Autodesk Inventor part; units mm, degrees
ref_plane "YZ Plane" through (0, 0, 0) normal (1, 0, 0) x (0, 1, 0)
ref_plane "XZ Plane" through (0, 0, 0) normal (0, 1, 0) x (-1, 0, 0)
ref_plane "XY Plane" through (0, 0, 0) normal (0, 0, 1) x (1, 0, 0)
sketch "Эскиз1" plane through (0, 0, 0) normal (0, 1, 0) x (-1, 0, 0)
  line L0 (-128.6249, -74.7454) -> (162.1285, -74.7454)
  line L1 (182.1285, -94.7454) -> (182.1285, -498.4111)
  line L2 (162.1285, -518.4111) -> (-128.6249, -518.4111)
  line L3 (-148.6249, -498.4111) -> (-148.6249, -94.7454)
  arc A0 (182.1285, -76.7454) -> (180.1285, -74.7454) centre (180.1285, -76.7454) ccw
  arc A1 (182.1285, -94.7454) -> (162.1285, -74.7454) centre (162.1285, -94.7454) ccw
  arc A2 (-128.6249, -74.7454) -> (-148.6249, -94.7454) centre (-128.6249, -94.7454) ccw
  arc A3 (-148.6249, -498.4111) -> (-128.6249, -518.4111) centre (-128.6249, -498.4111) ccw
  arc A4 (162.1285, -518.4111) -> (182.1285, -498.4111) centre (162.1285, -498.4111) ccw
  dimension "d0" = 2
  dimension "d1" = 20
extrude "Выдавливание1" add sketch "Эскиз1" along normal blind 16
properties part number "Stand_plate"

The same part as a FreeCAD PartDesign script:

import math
import FreeCAD as App
import Part
import Sketcher
Q = App.Units.Quantity

doc = App.newDocument("Part")
body = doc.addObject("PartDesign::Body", "Body")

# Sketch on XZ plane
sketch1 = doc.addObject("Sketcher::SketchObject", "Sketch")
body.addObject(sketch1)
sketch1.AttachmentSupport = (doc.XZ_Plane, [""])
sketch1.MapMode = "FlatFace"
sketch1.addGeometry(Part.LineSegment(App.Vector(-162, -75, 0), App.Vector(129, -75, 0)), False)
sketch1.addGeometry(Part.ArcOfCircle(Part.Circle(App.Vector(129, -95, 0), App.Vector(0, 0, 1), 20), math.radians(0), math.radians(90)), False)
sketch1.addGeometry(Part.LineSegment(App.Vector(149, -95, 0), App.Vector(149, -498, 0)), False)
sketch1.addGeometry(Part.ArcOfCircle(Part.Circle(App.Vector(129, -498, 0), App.Vector(0, 0, 1), 20), math.radians(-90), math.radians(0)), False)
sketch1.addGeometry(Part.LineSegment(App.Vector(129, -518, 0), App.Vector(-162, -518, 0)), False)
sketch1.addGeometry(Part.ArcOfCircle(Part.Circle(App.Vector(-162, -498, 0), App.Vector(0, 0, 1), 20), math.radians(180), math.radians(270)), False)
sketch1.addGeometry(Part.LineSegment(App.Vector(-182, -498, 0), App.Vector(-182, -95, 0)), False)
sketch1.addGeometry(Part.ArcOfCircle(Part.Circle(App.Vector(-162, -95, 0), App.Vector(0, 0, 1), 20), math.radians(90), math.radians(180)), False)
sketch1.addConstraint(Sketcher.Constraint("Tangent", 0, 2, 1, 2))
sketch1.addConstraint(Sketcher.Constraint("Tangent", 1, 1, 2, 1))
sketch1.addConstraint(Sketcher.Constraint("Tangent", 2, 2, 3, 2))
sketch1.addConstraint(Sketcher.Constraint("Tangent", 3, 1, 4, 1))
sketch1.addConstraint(Sketcher.Constraint("Tangent", 4, 2, 5, 2))
sketch1.addConstraint(Sketcher.Constraint("Tangent", 5, 1, 6, 1))
sketch1.addConstraint(Sketcher.Constraint("Tangent", 6, 2, 7, 2))
sketch1.addConstraint(Sketcher.Constraint("Tangent", 7, 1, 0, 1))
sketch1.addConstraint(Sketcher.Constraint("Horizontal", 0))
sketch1.addConstraint(Sketcher.Constraint("Vertical", 2))
sketch1.addConstraint(Sketcher.Constraint("Horizontal", 4))
sketch1.addConstraint(Sketcher.Constraint("Vertical", 6))
sketch1.addConstraint(Sketcher.Constraint("Equal", 1, 3))
sketch1.addConstraint(Sketcher.Constraint("Equal", 3, 5))
sketch1.addConstraint(Sketcher.Constraint("Equal", 5, 7))
sketch1.addConstraint(Sketcher.Constraint("Radius", 1, Q("20 mm")))
sketch1.addConstraint(Sketcher.Constraint("DistanceX", 0, 1, 0, 2, Q("290.7534 mm")))
sketch1.addConstraint(Sketcher.Constraint("DistanceY", 2, 2, 2, 1, Q("403.6657 mm")))
sketch1.addConstraint(Sketcher.Constraint("DistanceX", -1, 1, 1, 3, Q("128.625 mm")))
sketch1.addConstraint(Sketcher.Constraint("DistanceY", 3, 3, -1, 1, Q("498.411 mm")))
pad1 = doc.addObject("PartDesign::Pad", "Pad")
body.addObject(pad1)
pad1.Profile = sketch1
pad1.Length = 16
pad1.Reversed = True

doc.recompute()
